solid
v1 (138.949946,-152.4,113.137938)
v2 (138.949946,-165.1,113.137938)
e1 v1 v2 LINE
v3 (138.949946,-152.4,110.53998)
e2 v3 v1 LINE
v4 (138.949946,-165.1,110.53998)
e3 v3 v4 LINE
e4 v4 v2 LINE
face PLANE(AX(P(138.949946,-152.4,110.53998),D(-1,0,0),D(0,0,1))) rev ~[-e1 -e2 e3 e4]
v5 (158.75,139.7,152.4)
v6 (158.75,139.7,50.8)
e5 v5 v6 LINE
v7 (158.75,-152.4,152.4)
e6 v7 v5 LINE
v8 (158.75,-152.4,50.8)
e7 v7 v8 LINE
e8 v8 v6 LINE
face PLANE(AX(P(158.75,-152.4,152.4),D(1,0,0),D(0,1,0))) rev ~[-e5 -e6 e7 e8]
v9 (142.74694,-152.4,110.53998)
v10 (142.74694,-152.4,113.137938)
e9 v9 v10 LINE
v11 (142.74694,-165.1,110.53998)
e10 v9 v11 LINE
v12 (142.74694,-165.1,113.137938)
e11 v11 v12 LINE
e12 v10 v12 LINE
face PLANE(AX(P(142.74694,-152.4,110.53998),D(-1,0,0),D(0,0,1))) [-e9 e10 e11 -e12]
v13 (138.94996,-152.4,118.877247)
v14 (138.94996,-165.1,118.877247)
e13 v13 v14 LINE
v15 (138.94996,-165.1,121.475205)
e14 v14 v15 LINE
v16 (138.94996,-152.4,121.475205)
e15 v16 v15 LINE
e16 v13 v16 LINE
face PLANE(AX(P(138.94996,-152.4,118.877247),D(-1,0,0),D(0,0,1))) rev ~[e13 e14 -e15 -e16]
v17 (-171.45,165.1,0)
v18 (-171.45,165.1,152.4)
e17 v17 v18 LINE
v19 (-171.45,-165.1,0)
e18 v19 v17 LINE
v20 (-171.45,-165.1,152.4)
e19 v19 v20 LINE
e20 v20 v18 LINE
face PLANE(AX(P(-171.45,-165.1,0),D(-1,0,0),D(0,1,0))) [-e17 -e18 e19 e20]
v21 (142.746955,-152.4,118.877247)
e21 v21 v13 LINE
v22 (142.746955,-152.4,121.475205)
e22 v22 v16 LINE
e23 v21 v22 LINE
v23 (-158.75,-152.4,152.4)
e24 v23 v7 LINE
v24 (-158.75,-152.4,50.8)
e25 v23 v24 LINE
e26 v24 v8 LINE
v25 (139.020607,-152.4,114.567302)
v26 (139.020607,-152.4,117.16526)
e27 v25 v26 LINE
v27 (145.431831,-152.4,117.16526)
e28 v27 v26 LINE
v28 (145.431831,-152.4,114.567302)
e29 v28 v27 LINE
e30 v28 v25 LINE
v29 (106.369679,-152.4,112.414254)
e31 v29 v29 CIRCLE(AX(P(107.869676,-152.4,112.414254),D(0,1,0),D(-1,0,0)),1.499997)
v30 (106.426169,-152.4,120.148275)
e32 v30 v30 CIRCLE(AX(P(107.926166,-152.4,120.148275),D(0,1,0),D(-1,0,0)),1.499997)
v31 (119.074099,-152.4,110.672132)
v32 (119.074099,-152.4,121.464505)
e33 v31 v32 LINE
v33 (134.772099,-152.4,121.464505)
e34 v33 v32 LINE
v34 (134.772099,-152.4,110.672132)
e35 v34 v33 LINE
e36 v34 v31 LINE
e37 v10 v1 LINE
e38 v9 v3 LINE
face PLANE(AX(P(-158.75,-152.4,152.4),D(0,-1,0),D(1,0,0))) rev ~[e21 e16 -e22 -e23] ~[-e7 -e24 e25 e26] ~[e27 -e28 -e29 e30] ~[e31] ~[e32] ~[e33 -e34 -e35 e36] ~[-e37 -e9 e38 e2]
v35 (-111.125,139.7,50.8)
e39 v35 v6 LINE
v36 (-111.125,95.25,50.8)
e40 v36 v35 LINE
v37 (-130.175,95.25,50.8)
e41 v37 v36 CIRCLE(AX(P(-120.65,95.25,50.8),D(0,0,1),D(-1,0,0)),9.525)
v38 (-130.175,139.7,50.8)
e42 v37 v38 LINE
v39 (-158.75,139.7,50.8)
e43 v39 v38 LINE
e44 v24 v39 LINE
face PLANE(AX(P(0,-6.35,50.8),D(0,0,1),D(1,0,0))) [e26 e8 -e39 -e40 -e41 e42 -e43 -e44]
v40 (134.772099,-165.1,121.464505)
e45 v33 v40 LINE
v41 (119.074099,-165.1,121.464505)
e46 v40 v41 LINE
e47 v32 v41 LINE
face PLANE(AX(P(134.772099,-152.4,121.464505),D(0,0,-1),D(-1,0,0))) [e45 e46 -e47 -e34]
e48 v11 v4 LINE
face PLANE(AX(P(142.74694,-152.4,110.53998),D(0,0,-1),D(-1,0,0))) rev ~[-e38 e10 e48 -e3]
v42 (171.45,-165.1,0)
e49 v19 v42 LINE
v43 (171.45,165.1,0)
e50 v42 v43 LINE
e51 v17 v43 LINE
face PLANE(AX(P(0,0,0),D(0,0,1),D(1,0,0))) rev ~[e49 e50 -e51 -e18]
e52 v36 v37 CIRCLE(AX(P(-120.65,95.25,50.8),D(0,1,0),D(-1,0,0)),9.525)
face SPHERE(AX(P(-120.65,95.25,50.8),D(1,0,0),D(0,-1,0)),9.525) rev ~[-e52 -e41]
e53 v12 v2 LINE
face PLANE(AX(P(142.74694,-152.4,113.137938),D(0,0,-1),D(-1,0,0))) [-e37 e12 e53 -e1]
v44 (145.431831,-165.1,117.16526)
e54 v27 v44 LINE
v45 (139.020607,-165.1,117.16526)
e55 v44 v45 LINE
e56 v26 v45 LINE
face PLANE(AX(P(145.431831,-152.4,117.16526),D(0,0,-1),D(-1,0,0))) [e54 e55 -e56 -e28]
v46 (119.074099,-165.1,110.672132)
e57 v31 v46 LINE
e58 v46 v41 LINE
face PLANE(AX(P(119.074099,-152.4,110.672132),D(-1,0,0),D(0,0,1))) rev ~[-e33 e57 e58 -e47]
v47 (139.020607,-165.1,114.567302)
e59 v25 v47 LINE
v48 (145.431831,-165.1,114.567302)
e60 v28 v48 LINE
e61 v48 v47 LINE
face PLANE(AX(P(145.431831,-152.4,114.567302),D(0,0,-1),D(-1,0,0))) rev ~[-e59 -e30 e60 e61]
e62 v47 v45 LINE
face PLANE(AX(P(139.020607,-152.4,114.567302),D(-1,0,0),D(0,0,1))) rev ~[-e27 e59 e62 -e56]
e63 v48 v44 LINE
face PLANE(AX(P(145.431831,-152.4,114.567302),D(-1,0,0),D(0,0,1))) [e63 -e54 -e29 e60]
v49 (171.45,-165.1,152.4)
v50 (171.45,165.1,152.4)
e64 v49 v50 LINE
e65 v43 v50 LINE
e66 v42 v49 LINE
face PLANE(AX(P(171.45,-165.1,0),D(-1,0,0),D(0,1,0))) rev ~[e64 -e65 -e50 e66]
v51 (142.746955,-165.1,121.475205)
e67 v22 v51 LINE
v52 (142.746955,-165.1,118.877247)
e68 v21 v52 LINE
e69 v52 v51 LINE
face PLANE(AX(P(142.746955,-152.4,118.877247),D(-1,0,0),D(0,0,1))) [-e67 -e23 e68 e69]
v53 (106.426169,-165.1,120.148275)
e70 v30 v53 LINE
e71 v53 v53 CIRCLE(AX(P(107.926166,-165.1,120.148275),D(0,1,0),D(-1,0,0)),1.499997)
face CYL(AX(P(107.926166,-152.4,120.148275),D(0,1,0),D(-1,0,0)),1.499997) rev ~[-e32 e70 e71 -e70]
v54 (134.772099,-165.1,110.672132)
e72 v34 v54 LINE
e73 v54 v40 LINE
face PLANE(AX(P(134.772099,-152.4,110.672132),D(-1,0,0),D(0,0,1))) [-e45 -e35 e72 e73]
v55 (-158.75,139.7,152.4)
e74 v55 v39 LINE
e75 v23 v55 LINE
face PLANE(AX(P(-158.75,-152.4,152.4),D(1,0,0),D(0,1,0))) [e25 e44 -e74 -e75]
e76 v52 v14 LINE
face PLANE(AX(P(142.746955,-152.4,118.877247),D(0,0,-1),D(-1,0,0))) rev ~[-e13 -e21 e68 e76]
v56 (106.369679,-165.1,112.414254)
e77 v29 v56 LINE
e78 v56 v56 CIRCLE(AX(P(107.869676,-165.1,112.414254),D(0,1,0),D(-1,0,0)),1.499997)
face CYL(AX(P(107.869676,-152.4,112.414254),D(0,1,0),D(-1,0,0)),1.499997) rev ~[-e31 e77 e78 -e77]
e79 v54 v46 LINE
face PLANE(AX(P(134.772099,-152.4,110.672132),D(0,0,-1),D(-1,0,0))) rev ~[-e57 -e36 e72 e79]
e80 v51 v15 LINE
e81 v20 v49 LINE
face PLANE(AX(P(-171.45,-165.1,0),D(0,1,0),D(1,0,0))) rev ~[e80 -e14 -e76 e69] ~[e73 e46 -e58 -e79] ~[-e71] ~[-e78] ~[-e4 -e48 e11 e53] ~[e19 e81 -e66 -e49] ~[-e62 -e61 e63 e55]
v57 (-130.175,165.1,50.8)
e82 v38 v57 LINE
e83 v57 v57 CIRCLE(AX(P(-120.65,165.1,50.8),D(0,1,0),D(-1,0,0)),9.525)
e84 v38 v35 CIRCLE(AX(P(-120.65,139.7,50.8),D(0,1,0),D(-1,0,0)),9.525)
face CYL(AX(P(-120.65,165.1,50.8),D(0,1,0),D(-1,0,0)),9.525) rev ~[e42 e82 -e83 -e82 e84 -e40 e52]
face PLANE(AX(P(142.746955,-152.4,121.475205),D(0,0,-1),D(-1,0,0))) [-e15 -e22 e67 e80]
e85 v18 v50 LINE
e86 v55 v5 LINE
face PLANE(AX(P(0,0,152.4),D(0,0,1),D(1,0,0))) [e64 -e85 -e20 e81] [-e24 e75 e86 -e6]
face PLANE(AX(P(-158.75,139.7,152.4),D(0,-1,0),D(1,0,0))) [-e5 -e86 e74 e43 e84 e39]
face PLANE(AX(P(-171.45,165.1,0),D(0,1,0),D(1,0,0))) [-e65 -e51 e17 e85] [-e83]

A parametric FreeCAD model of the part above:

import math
import FreeCAD as App
import Part
import Sketcher

V = App.Vector
Q = App.Units.Quantity

doc = App.newDocument("Part")
body = doc.addObject("PartDesign::Body", "Body")

# Sketch on XY plane
sketch1 = doc.addObject("Sketcher::SketchObject", "Sketch")
body.addObject(sketch1)
sketch1.AttachmentSupport = (doc.XY_Plane, [""])
sketch1.MapMode = "FlatFace"
sketch1.addGeometry(Part.LineSegment(V(-171, 165, 0), V(-171, -165, 0)), False)
sketch1.addGeometry(Part.LineSegment(V(-171, -165, 0), V(171, -165, 0)), False)
sketch1.addGeometry(Part.LineSegment(V(171, -165, 0), V(171, 165, 0)), False)
sketch1.addGeometry(Part.LineSegment(V(171, 165, 0), V(-171, 165, 0)), False)
sketch1.addConstraint(Sketcher.Constraint("Coincident", 0, 2, 1, 1))
sketch1.addConstraint(Sketcher.Constraint("Coincident", 1, 2, 2, 1))
sketch1.addConstraint(Sketcher.Constraint("Coincident", 2, 2, 3, 1))
sketch1.addConstraint(Sketcher.Constraint("Coincident", 3, 2, 0, 1))
sketch1.addConstraint(Sketcher.Constraint("Vertical", 0))
sketch1.addConstraint(Sketcher.Constraint("Horizontal", 1))
sketch1.addConstraint(Sketcher.Constraint("Vertical", 2))
sketch1.addConstraint(Sketcher.Constraint("Horizontal", 3))
sketch1.addConstraint(Sketcher.Constraint("Symmetric", 0, 2, 2, 2, -1, 1))
sketch1.addConstraint(Sketcher.Constraint("DistanceY", 0, 2, 0, 1, Q("13 in")))
sketch1.addConstraint(Sketcher.Constraint("DistanceX", 1, 1, 1, 2, Q("13.5 in")))
pad1 = doc.addObject("PartDesign::Pad", "Pad")
body.addObject(pad1)
pad1.Profile = sketch1
pad1.Length = Q("6 in")

# Sketch on XY plane
sketch2 = doc.addObject("Sketcher::SketchObject", "Sketch001")
body.addObject(sketch2)
sketch2.AttachmentSupport = (doc.XY_Plane, [""])
sketch2.MapMode = "FlatFace"
sketch2.AttachmentOffset = App.Placement(V(0, 0, 6 * 25.4), App.Rotation())
sketch2.addGeometry(Part.LineSegment(V(-159, 140, 0), V(-159, -152, 0)), False)
sketch2.addGeometry(Part.LineSegment(V(-159, -152, 0), V(159, -152, 0)), False)
sketch2.addGeometry(Part.LineSegment(V(159, -152, 0), V(159, 140, 0)), False)
sketch2.addGeometry(Part.LineSegment(V(159, 140, 0), V(-159, 140, 0)), False)
sketch2.addConstraint(Sketcher.Constraint("Coincident", 0, 2, 1, 1))
sketch2.addConstraint(Sketcher.Constraint("Coincident", 1, 2, 2, 1))
sketch2.addConstraint(Sketcher.Constraint("Coincident", 2, 2, 3, 1))
sketch2.addConstraint(Sketcher.Constraint("Coincident", 3, 2, 0, 1))
sketch2.addConstraint(Sketcher.Constraint("Vertical", 0))
sketch2.addConstraint(Sketcher.Constraint("Horizontal", 1))
sketch2.addConstraint(Sketcher.Constraint("Vertical", 2))
sketch2.addConstraint(Sketcher.Constraint("Horizontal", 3))
sketch2.addConstraint(Sketcher.Constraint("DistanceX", 1, 1, 1, 2, Q("12.5 in")))
sketch2.addConstraint(Sketcher.Constraint("DistanceY", 0, 2, 0, 1, Q("11.5 in")))
sketch2.addConstraint(Sketcher.Constraint("DistanceY", 0, 2, -1, 1, Q("6 in")))
sketch2.addConstraint(Sketcher.Constraint("DistanceX", 0, 2, -1, 1, Q("6.25 in")))
pocket1 = doc.addObject("PartDesign::Pocket", "Pocket")
body.addObject(pocket1)
pocket1.Profile = sketch2
pocket1.Length = Q("4 in")

# Sketch on XZ plane
sketch3 = doc.addObject("Sketcher::SketchObject", "Sketch002")
body.addObject(sketch3)
sketch3.AttachmentSupport = (doc.XZ_Plane, [""])
sketch3.MapMode = "FlatFace"
sketch3.AttachmentOffset = App.Placement(V(0, 0, -6.5 * 25.4), App.Rotation())
sketch3.addGeometry(Part.Circle(V(-121, 51, 0), V(0, 0, 1), 10), False)
sketch3.addConstraint(Sketcher.Constraint("Diameter", 0, Q("0.75 in")))
sketch3.addConstraint(Sketcher.Constraint("DistanceY", -1, 1, 0, 3, Q("2 in")))
sketch3.addConstraint(Sketcher.Constraint("DistanceX", 0, 3, -1, 1, Q("4.75 in")))
pocket2 = doc.addObject("PartDesign::Pocket", "Pocket001")
body.addObject(pocket2)
pocket2.Profile = sketch3
pocket2.Length = Q("5.5 in")
pocket2.Midplane = True

# Sketch on XY plane
sketch4 = doc.addObject("Sketcher::SketchObject", "Sketch003")
body.addObject(sketch4)
sketch4.AttachmentSupport = (doc.XY_Plane, [""])
sketch4.MapMode = "FlatFace"
sketch4.AttachmentOffset = App.Placement(V(0, 0, 2 * 25.4), App.Rotation())
sketch4.addGeometry(Part.LineSegment(V(-111, 95, 0), V(-130, 95, 0)), False)
sketch4.addGeometry(Part.ArcOfCircle(Part.Circle(V(-121, 95, 0), V(0, 0, 1), 10), math.radians(180), math.radians(360)), False)
sketch4.addGeometry(Part.LineSegment(V(-130, 95, 0), V(-111, 95, 0)), True)  # axis
sketch4.addConstraint(Sketcher.Constraint("Coincident", 0, 1, 1, 2))
sketch4.addConstraint(Sketcher.Constraint("Coincident", 1, 1, 0, 2))
sketch4.addConstraint(Sketcher.Constraint("Horizontal", 0))
sketch4.addConstraint(Sketcher.Constraint("Horizontal", 2))
sketch4.addConstraint(Sketcher.Constraint("Coincident", 2, 1, 1, 1))
sketch4.addConstraint(Sketcher.Constraint("Horizontal", 1, 3, 0, 1))
sketch4.addConstraint(Sketcher.Constraint("Equal", 0, 2))
sketch4.addConstraint(Sketcher.Constraint("Radius", 1, Q("0.375 in")))
sketch4.addConstraint(Sketcher.Constraint("DistanceX", 1, 3, -1, 1, Q("4.75 in")))
sketch4.addConstraint(Sketcher.Constraint("DistanceY", -1, 1, 1, 3, Q("3.75 in")))
groove = doc.addObject("PartDesign::Groove", "Groove")
body.addObject(groove)
groove.Profile = sketch4
groove.ReferenceAxis = (sketch4, ["Axis0"])
groove.Angle = 360

# Sketch on XZ plane
sketch5 = doc.addObject("Sketcher::SketchObject", "Sketch004")
body.addObject(sketch5)
sketch5.AttachmentSupport = (doc.XZ_Plane, [""])
sketch5.MapMode = "FlatFace"
sketch5.AttachmentOffset = App.Placement(V(0, 0, 6 * 25.4), App.Rotation())
sketch5.addGeometry(Part.Circle(V(107.9, 112.4, 0), V(0, 0, 1), 1.5), False)
sketch5.addGeometry(Part.Circle(V(107.9, 120.1, 0), V(0, 0, 1), 1.5), False)
sketch5.addGeometry(Part.LineSegment(V(134.8, 121.5, 0), V(134.8, 110.7, 0)), False)
sketch5.addGeometry(Part.LineSegment(V(134.8, 110.7, 0), V(119.1, 110.7, 0)), False)
sketch5.addGeometry(Part.LineSegment(V(119.1, 110.7, 0), V(119.1, 121.5, 0)), False)
sketch5.addGeometry(Part.LineSegment(V(119.1, 121.5, 0), V(134.8, 121.5, 0)), False)
sketch5.addGeometry(Part.LineSegment(V(142.7, 121.5, 0), V(142.7, 118.9, 0)), False)
sketch5.addGeometry(Part.LineSegment(V(142.7, 118.9, 0), V(138.9, 118.9, 0)), False)
sketch5.addGeometry(Part.LineSegment(V(138.9, 118.9, 0), V(138.9, 121.5, 0)), False)
sketch5.addGeometry(Part.LineSegment(V(138.9, 121.5, 0), V(142.7, 121.5, 0)), False)
sketch5.addGeometry(Part.LineSegment(V(145.4, 117.2, 0), V(145.4, 114.6, 0)), False)
sketch5.addGeometry(Part.LineSegment(V(145.4, 114.6, 0), V(139, 114.6, 0)), False)
sketch5.addGeometry(Part.LineSegment(V(139, 114.6, 0), V(139, 117.2, 0)), False)
sketch5.addGeometry(Part.LineSegment(V(139, 117.2, 0), V(145.4, 117.2, 0)), False)
sketch5.addGeometry(Part.LineSegment(V(142.7, 113.1, 0), V(142.7, 110.5, 0)), False)
sketch5.addGeometry(Part.LineSegment(V(142.7, 110.5, 0), V(138.9, 110.5, 0)), False)
sketch5.addGeometry(Part.LineSegment(V(138.9, 110.5, 0), V(138.9, 113.1, 0)), False)
sketch5.addGeometry(Part.LineSegment(V(138.9, 113.1, 0), V(142.7, 113.1, 0)), False)
sketch5.addConstraint(Sketcher.Constraint("Coincident", 2, 2, 3, 1))
sketch5.addConstraint(Sketcher.Constraint("Coincident", 3, 2, 4, 1))
sketch5.addConstraint(Sketcher.Constraint("Coincident", 4, 2, 5, 1))
sketch5.addConstraint(Sketcher.Constraint("Coincident", 5, 2, 2, 1))
sketch5.addConstraint(Sketcher.Constraint("Coincident", 6, 2, 7, 1))
sketch5.addConstraint(Sketcher.Constraint("Coincident", 7, 2, 8, 1))
sketch5.addConstraint(Sketcher.Constraint("Coincident", 8, 2, 9, 1))
sketch5.addConstraint(Sketcher.Constraint("Coincident", 9, 2, 6, 1))
sketch5.addConstraint(Sketcher.Constraint("Coincident", 10, 2, 11, 1))
sketch5.addConstraint(Sketcher.Constraint("Coincident", 11, 2, 12, 1))
sketch5.addConstraint(Sketcher.Constraint("Coincident", 12, 2, 13, 1))
sketch5.addConstraint(Sketcher.Constraint("Coincident", 13, 2, 10, 1))
sketch5.addConstraint(Sketcher.Constraint("Coincident", 14, 2, 15, 1))
sketch5.addConstraint(Sketcher.Constraint("Coincident", 15, 2, 16, 1))
sketch5.addConstraint(Sketcher.Constraint("Coincident", 16, 2, 17, 1))
sketch5.addConstraint(Sketcher.Constraint("Coincident", 17, 2, 14, 1))
sketch5.addConstraint(Sketcher.Constraint("Vertical", 2))
sketch5.addConstraint(Sketcher.Constraint("Horizontal", 3))
sketch5.addConstraint(Sketcher.Constraint("Vertical", 4))
sketch5.addConstraint(Sketcher.Constraint("Horizontal", 5))
sketch5.addConstraint(Sketcher.Constraint("Vertical", 6))
sketch5.addConstraint(Sketcher.Constraint("Horizontal", 7))
sketch5.addConstraint(Sketcher.Constraint("Vertical", 8))
sketch5.addConstraint(Sketcher.Constraint("Horizontal", 9))
sketch5.addConstraint(Sketcher.Constraint("Vertical", 10))
sketch5.addConstraint(Sketcher.Constraint("Horizontal", 11))
sketch5.addConstraint(Sketcher.Constraint("Vertical", 12))
sketch5.addConstraint(Sketcher.Constraint("Horizontal", 13))
sketch5.addConstraint(Sketcher.Constraint("Vertical", 14))
sketch5.addConstraint(Sketcher.Constraint("Horizontal", 15))
sketch5.addConstraint(Sketcher.Constraint("Vertical", 16))
sketch5.addConstraint(Sketcher.Constraint("Horizontal", 17))
sketch5.addConstraint(Sketcher.Constraint("Equal", 0, 1))
sketch5.addConstraint(Sketcher.Constraint("Equal", 9, 15))
sketch5.addConstraint(Sketcher.Constraint("Equal", 8, 10))
sketch5.addConstraint(Sketcher.Constraint("Equal", 12, 14))
sketch5.addConstraint(Sketcher.Constraint("Diameter", 0, 2.999994))
sketch5.addConstraint(Sketcher.Constraint("DistanceX", 3, 2, 3, 1, 15.698))
sketch5.addConstraint(Sketcher.Constraint("DistanceX", -1, 1, 2, 2, 134.772099))
sketch5.addConstraint(Sketcher.Constraint("DistanceY", 5, 2, 8, 2, 0.0107))
sketch5.addConstraint(Sketcher.Constraint("DistanceX", 7, 2, 7, 1, 3.796995))
sketch5.addConstraint(Sketcher.Constraint("DistanceX", 11, 2, 11, 1, 6.411225))
sketch5.addConstraint(Sketcher.Constraint("DistanceY", 2, 2, 2, 1, 10.792373))
sketch5.addConstraint(Sketcher.Constraint("DistanceY", 6, 2, 6, 1, 2.597958))
sketch5.addConstraint(Sketcher.Constraint("DistanceX", -1, 1, 7, 2, 138.94996))
sketch5.addConstraint(Sketcher.Constraint("DistanceX", -1, 1, 10, 2, 145.431831))
sketch5.addConstraint(Sketcher.Constraint("DistanceY", -1, 1, 12, 2, 117.16526))
sketch5.addConstraint(Sketcher.Constraint("DistanceX", -1, 1, 14, 2, 142.74694))
sketch5.addConstraint(Sketcher.Constraint("DistanceY", -1, 1, 14, 2, 110.53998))
sketch5.addConstraint(Sketcher.Constraint("DistanceX", 0, 3, 1, 3, 0.05649))
sketch5.addConstraint(Sketcher.Constraint("DistanceY", 0, 3, 1, 3, 7.734021))
sketch5.addConstraint(Sketcher.Constraint("DistanceY", 1, 3, 4, 2, 1.31623))
sketch5.addConstraint(Sketcher.Constraint("DistanceX", 1, 3, 6, 2, 34.820789))
sketch5.addConstraint(Sketcher.Constraint("DistanceY", 2, 2, 10, 2, 3.89517))
pocket3 = doc.addObject("PartDesign::Pocket", "Pocket002")
body.addObject(pocket3)
pocket3.Profile = sketch5
pocket3.Length = Q("1 in")
pocket3.Reversed = True

doc.recompute()
